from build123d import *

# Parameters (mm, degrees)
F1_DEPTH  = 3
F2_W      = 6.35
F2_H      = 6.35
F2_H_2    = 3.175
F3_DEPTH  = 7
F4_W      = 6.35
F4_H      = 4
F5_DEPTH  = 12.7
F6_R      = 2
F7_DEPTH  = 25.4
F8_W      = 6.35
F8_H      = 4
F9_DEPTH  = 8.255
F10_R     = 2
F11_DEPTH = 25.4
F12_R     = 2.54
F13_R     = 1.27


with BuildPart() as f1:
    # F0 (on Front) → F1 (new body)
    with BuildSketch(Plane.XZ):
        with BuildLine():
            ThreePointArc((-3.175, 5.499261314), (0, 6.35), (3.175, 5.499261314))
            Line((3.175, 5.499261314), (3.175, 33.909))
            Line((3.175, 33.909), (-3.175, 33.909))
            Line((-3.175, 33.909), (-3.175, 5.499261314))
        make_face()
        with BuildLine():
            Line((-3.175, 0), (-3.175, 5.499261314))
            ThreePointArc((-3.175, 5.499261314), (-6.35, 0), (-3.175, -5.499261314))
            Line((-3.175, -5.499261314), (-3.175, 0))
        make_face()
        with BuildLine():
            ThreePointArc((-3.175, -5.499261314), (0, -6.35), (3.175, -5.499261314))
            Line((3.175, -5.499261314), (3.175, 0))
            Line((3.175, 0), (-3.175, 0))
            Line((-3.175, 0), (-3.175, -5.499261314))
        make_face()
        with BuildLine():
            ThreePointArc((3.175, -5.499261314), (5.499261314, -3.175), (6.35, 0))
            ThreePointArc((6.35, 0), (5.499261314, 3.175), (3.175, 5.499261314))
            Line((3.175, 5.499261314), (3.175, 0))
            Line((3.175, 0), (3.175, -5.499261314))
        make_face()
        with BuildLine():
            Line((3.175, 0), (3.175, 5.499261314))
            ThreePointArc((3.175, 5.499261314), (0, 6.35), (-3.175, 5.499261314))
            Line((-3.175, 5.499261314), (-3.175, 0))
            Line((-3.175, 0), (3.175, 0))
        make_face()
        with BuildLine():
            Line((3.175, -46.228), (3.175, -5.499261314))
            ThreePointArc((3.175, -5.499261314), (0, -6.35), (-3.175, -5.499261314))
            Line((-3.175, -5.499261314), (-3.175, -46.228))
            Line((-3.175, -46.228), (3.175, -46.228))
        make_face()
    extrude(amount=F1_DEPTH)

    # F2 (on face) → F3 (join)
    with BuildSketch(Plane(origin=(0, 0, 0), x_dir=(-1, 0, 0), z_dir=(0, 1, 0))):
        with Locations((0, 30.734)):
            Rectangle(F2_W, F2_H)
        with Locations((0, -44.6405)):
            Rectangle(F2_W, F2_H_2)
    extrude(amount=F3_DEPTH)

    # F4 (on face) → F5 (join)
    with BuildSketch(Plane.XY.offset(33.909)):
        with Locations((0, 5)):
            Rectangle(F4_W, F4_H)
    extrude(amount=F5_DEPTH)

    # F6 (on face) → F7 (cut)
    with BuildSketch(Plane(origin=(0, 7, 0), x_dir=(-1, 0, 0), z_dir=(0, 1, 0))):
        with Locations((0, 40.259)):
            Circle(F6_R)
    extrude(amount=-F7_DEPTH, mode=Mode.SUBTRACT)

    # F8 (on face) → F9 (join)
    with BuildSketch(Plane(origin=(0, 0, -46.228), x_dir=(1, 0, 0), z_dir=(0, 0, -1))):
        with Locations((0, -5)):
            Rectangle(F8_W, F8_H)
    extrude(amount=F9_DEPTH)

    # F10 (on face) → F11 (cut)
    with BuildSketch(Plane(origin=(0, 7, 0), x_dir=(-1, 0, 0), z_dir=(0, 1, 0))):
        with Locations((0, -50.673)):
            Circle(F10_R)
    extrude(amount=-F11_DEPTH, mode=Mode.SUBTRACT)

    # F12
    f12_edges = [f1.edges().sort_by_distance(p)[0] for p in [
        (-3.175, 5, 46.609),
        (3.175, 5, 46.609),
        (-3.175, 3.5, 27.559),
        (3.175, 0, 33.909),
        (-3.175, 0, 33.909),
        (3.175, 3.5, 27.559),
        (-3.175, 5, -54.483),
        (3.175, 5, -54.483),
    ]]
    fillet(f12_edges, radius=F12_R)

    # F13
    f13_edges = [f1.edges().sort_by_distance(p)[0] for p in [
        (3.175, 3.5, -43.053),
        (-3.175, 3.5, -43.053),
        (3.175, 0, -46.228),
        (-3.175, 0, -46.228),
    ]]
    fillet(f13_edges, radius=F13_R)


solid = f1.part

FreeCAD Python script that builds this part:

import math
import FreeCAD as App
import Part
import Sketcher
from FreeCAD import Vector
Q = App.Units.Quantity


def edges_at(feature, points):
    """Names of the edges that pass closest to the given points."""
    edges = feature.Shape.Edges
    near = lambda p: min(range(len(edges)), key=lambda i: edges[i].distToShape(Part.Vertex(*p))[0])
    return sorted({f"Edge{near(p) + 1}" for p in points})

doc = App.newDocument("Part")
body = doc.addObject("PartDesign::Body", "Body")

# Sketch on XZ plane
sketch1 = body.newObject("Sketcher::SketchObject", "Sketch")
sketch1.AttachmentSupport = (doc.getObject("XZ_Plane"), [""])
sketch1.MapMode = "FlatFace"
sketch1.addGeometry(Part.LineSegment(Vector(3, 5, 0), Vector(3, 34, 0)), False)
sketch1.addGeometry(Part.LineSegment(Vector(3, 34, 0), Vector(-3, 34, 0)), False)
sketch1.addGeometry(Part.LineSegment(Vector(-3, 34, 0), Vector(-3, 5, 0)), False)
sketch1.addGeometry(Part.ArcOfCircle(Part.Circle(Vector(0, 0, 0), Vector(0, 0, 1), 6), math.radians(120), math.radians(240)), False)
sketch1.addGeometry(Part.LineSegment(Vector(-3, -5, 0), Vector(-3, -46, 0)), False)
sketch1.addGeometry(Part.LineSegment(Vector(-3, -46, 0), Vector(3, -46, 0)), False)
sketch1.addGeometry(Part.LineSegment(Vector(3, -46, 0), Vector(3, -5, 0)), False)
sketch1.addGeometry(Part.ArcOfCircle(Part.Circle(Vector(0, 0, 0), Vector(0, 0, 1), 6), math.radians(-60), math.radians(0)), False)
sketch1.addGeometry(Part.ArcOfCircle(Part.Circle(Vector(0, 0, 0), Vector(0, 0, 1), 6), math.radians(0), math.radians(60)), False)
sketch1.addConstraint(Sketcher.Constraint("Coincident", 0, 2, 1, 1))
sketch1.addConstraint(Sketcher.Constraint("Coincident", 1, 2, 2, 1))
sketch1.addConstraint(Sketcher.Constraint("Coincident", 2, 2, 3, 1))
sketch1.addConstraint(Sketcher.Constraint("Coincident", 3, 2, 4, 1))
sketch1.addConstraint(Sketcher.Constraint("Coincident", 4, 2, 5, 1))
sketch1.addConstraint(Sketcher.Constraint("Coincident", 5, 2, 6, 1))
sketch1.addConstraint(Sketcher.Constraint("Coincident", 6, 2, 7, 1))
sketch1.addConstraint(Sketcher.Constraint("Tangent", 7, 2, 8, 1))
sketch1.addConstraint(Sketcher.Constraint("Coincident", 8, 2, 0, 1))
sketch1.addConstraint(Sketcher.Constraint("Vertical", 0))
sketch1.addConstraint(Sketcher.Constraint("Horizontal", 1))
sketch1.addConstraint(Sketcher.Constraint("Vertical", 2))
sketch1.addConstraint(Sketcher.Constraint("Vertical", 4))
sketch1.addConstraint(Sketcher.Constraint("Horizontal", 5))
sketch1.addConstraint(Sketcher.Constraint("Vertical", 6))
sketch1.addConstraint(Sketcher.Constraint("Coincident", 3, 3, -1, 1))
sketch1.addConstraint(Sketcher.Constraint("Coincident", 7, 3, -1, 1))
sketch1.addConstraint(Sketcher.Constraint("Equal", 3, 7))
sketch1.addConstraint(Sketcher.Constraint("Equal", 7, 8))
sketch1.addConstraint(Sketcher.Constraint("PointOnObject", 7, 2, -1))
sketch1.addConstraint(Sketcher.Constraint("Horizontal", 3, 2, 6, 2))
sketch1.addConstraint(Sketcher.Constraint("Horizontal", 2, 2, 8, 2))
sketch1.addConstraint(Sketcher.Constraint("Vertical", 2, 2, 3, 2))
sketch1.addConstraint(Sketcher.Constraint("Radius", 3, Q("0.25 in")))
sketch1.addConstraint(Sketcher.Constraint("DistanceX", 1, 2, 1, 1, Q("0.25 in")))
sketch1.addConstraint(Sketcher.Constraint("DistanceY", 4, 2, -1, 1, Q("1.82 in")))
sketch1.addConstraint(Sketcher.Constraint("DistanceY", -1, 1, 0, 2, Q("1.335 in")))
pad1 = body.newObject("PartDesign::Pad", "Pad")
pad1.Profile = sketch1
pad1.Length = 3

# Sketch on XZ plane
sketch2 = body.newObject("Sketcher::SketchObject", "Sketch001")
sketch2.AttachmentSupport = (doc.getObject("XZ_Plane"), [""])
sketch2.MapMode = "FlatFace"
sketch2.addGeometry(Part.LineSegment(Vector(3.2, 33.9, 0), Vector(3.2, 27.6, 0)), False)
sketch2.addGeometry(Part.LineSegment(Vector(3.2, 27.6, 0), Vector(-3.2, 27.6, 0)), False)
sketch2.addGeometry(Part.LineSegment(Vector(-3.2, 27.6, 0), Vector(-3.2, 33.9, 0)), False)
sketch2.addGeometry(Part.LineSegment(Vector(-3.2, 33.9, 0), Vector(3.2, 33.9, 0)), False)
sketch2.addGeometry(Part.LineSegment(Vector(3.2, -43.1, 0), Vector(3.2, -46.2, 0)), False)
sketch2.addGeometry(Part.LineSegment(Vector(3.2, -46.2, 0), Vector(-3.2, -46.2, 0)), False)
sketch2.addGeometry(Part.LineSegment(Vector(-3.2, -46.2, 0), Vector(-3.2, -43.1, 0)), False)
sketch2.addGeometry(Part.LineSegment(Vector(-3.2, -43.1, 0), Vector(3.2, -43.1, 0)), False)
sketch2.addConstraint(Sketcher.Constraint("Coincident", 0, 2, 1, 1))
sketch2.addConstraint(Sketcher.Constraint("Coincident", 1, 2, 2, 1))
sketch2.addConstraint(Sketcher.Constraint("Coincident", 2, 2, 3, 1))
sketch2.addConstraint(Sketcher.Constraint("Coincident", 3, 2, 0, 1))
sketch2.addConstraint(Sketcher.Constraint("Coincident", 4, 2, 5, 1))
sketch2.addConstraint(Sketcher.Constraint("Coincident", 5, 2, 6, 1))
sketch2.addConstraint(Sketcher.Constraint("Coincident", 6, 2, 7, 1))
sketch2.addConstraint(Sketcher.Constraint("Coincident", 7, 2, 4, 1))
sketch2.addConstraint(Sketcher.Constraint("Vertical", 0))
sketch2.addConstraint(Sketcher.Constraint("Horizontal", 1))
sketch2.addConstraint(Sketcher.Constraint("Vertical", 2))
sketch2.addConstraint(Sketcher.Constraint("Horizontal", 3))
sketch2.addConstraint(Sketcher.Constraint("Vertical", 4))
sketch2.addConstraint(Sketcher.Constraint("Horizontal", 5))
sketch2.addConstraint(Sketcher.Constraint("Vertical", 6))
sketch2.addConstraint(Sketcher.Constraint("Horizontal", 7))
sketch2.addConstraint(Sketcher.Constraint("Vertical", 3, 2, 4, 2))
sketch2.addConstraint(Sketcher.Constraint("Vertical", 2, 2, 5, 2))
sketch2.addConstraint(Sketcher.Constraint("Equal", 7, 0))
sketch2.addConstraint(Sketcher.Constraint("DistanceX", 1, 2, 1, 1, Q("0.25 in")))
sketch2.addConstraint(Sketcher.Constraint("DistanceY", 4, 2, 4, 1, Q("0.125 in")))
sketch2.addConstraint(Sketcher.Constraint("DistanceY", 4, 2, -1, 1, Q("1.82 in")))
sketch2.addConstraint(Sketcher.Constraint("DistanceY", 6, 2, 1, 2, Q("2.78 in")))
sketch2.addConstraint(Sketcher.Constraint("DistanceX", -1, 1, 0, 2, Q("0.125 in")))
pad2 = body.newObject("PartDesign::Pad", "Pad001")
pad2.Profile = sketch2
pad2.Length = 7
pad2.Reversed = True

# Sketch on XY plane
sketch3 = body.newObject("Sketcher::SketchObject", "Sketch002")
sketch3.AttachmentSupport = (doc.getObject("XY_Plane"), [""])
sketch3.MapMode = "FlatFace"
sketch3.AttachmentOffset = App.Placement(Vector(0, 0, 1.335 * 25.4), App.Rotation())
sketch3.addGeometry(Part.LineSegment(Vector(-3.2, 7, 0), Vector(-3.2, 3, 0)), False)
sketch3.addGeometry(Part.LineSegment(Vector(-3.2, 3, 0), Vector(3.2, 3, 0)), False)
sketch3.addGeometry(Part.LineSegment(Vector(3.2, 3, 0), Vector(3.2, 7, 0)), False)
sketch3.addGeometry(Part.LineSegment(Vector(3.2, 7, 0), Vector(-3.2, 7, 0)), False)
sketch3.addConstraint(Sketcher.Constraint("Coincident", 0, 2, 1, 1))
sketch3.addConstraint(Sketcher.Constraint("Coincident", 1, 2, 2, 1))
sketch3.addConstraint(Sketcher.Constraint("Coincident", 2, 2, 3, 1))
sketch3.addConstraint(Sketcher.Constraint("Coincident", 3, 2, 0, 1))
sketch3.addConstraint(Sketcher.Constraint("Vertical", 0))
sketch3.addConstraint(Sketcher.Constraint("Horizontal", 1))
sketch3.addConstraint(Sketcher.Constraint("Vertical", 2))
sketch3.addConstraint(Sketcher.Constraint("Horizontal", 3))
sketch3.addConstraint(Sketcher.Constraint("DistanceX", 1, 1, 1, 2, Q("0.25 in")))
sketch3.addConstraint(Sketcher.Constraint("DistanceX", 0, 2, -1, 1, Q("0.125 in")))
sketch3.addConstraint(Sketcher.Constraint("DistanceY", 0, 2, 0, 1, Q("4 mm")))
sketch3.addConstraint(Sketcher.Constraint("DistanceY", -1, 1, 0, 2, Q("3 mm")))
pad3 = body.newObject("PartDesign::Pad", "Pad002")
pad3.Profile = sketch3
pad3.Length = Q("0.5 in")

# Sketch on XZ plane
sketch4 = body.newObject("Sketcher::SketchObject", "Sketch003")
sketch4.AttachmentSupport = (doc.getObject("XZ_Plane"), [""])
sketch4.MapMode = "FlatFace"
sketch4.AttachmentOffset = App.Placement(Vector(0, 0, -7), App.Rotation())
sketch4.addGeometry(Part.Circle(Vector(0, 40.3, 0), Vector(0, 0, 1), 2), False)
sketch4.addConstraint(Sketcher.Constraint("PointOnObject", 0, 3, -2))
sketch4.addConstraint(Sketcher.Constraint("Diameter", 0, Q("4 mm")))
sketch4.addConstraint(Sketcher.Constraint("DistanceY", -1, 1, 0, 3, Q("1.585 in")))
pocket1 = body.newObject("PartDesign::Pocket", "Pocket")
pocket1.Profile = sketch4
pocket1.Length = Q("1 in")
pocket1.Reversed = True

# Sketch on XY plane
sketch5 = body.newObject("Sketcher::SketchObject", "Sketch004")
sketch5.AttachmentSupport = (doc.getObject("XY_Plane"), [""])
sketch5.MapMode = "FlatFace"
sketch5.AttachmentOffset = App.Placement(Vector(0, 0, -1.82 * 25.4), App.Rotation())
sketch5.addGeometry(Part.LineSegment(Vector(-3.2, 3, 0), Vector(-3.2, 7, 0)), False)
sketch5.addGeometry(Part.LineSegment(Vector(-3.2, 7, 0), Vector(3.2, 7, 0)), False)
sketch5.addGeometry(Part.LineSegment(Vector(3.2, 7, 0), Vector(3.2, 3, 0)), False)
sketch5.addGeometry(Part.LineSegment(Vector(3.2, 3, 0), Vector(-3.2, 3, 0)), False)
sketch5.addConstraint(Sketcher.Constraint("Coincident", 0, 2, 1, 1))
sketch5.addConstraint(Sketcher.Constraint("Coincident", 1, 2, 2, 1))
sketch5.addConstraint(Sketcher.Constraint("Coincident", 2, 2, 3, 1))
sketch5.addConstraint(Sketcher.Constraint("Coincident", 3, 2, 0, 1))
sketch5.addConstraint(Sketcher.Constraint("Vertical", 0))
sketch5.addConstraint(Sketcher.Constraint("Horizontal", 1))
sketch5.addConstraint(Sketcher.Constraint("Vertical", 2))
sketch5.addConstraint(Sketcher.Constraint("Horizontal", 3))
sketch5.addConstraint(Sketcher.Constraint("DistanceX", 1, 1, 1, 2, Q("0.25 in")))
sketch5.addConstraint(Sketcher.Constraint("DistanceX", 0, 2, -1, 1, Q("0.125 in")))
sketch5.addConstraint(Sketcher.Constraint("DistanceY", 0, 1, 0, 2, Q("4 mm")))
sketch5.addConstraint(Sketcher.Constraint("DistanceY", -1, 1, 0, 2, Q("7 mm")))
pad4 = body.newObject("PartDesign::Pad", "Pad003")
pad4.Profile = sketch5
pad4.Length = Q("0.325 in")
pad4.Reversed = True

# Sketch on XZ plane
sketch6 = body.newObject("Sketcher::SketchObject", "Sketch005")
sketch6.AttachmentSupport = (doc.getObject("XZ_Plane"), [""])
sketch6.MapMode = "FlatFace"
sketch6.AttachmentOffset = App.Placement(Vector(0, 0, -7), App.Rotation())
sketch6.addGeometry(Part.Circle(Vector(0, -50.7, 0), Vector(0, 0, 1), 2), False)
sketch6.addConstraint(Sketcher.Constraint("PointOnObject", 0, 3, -2))
sketch6.addConstraint(Sketcher.Constraint("Diameter", 0, Q("4 mm")))
sketch6.addConstraint(Sketcher.Constraint("DistanceY", 0, 3, -1, 1, Q("1.995 in")))
pocket2 = body.newObject("PartDesign::Pocket", "Pocket001")
pocket2.Profile = sketch6
pocket2.Length = Q("1 in")
pocket2.Reversed = True
doc.recompute()

fillet = body.newObject("PartDesign::Fillet", "Fillet")
fillet.Base = (pocket2, edges_at(pocket2, [
    (-3.175, 5, 46.609),
    (3.175, 5, 46.609),
    (-3.175, 3.5, 27.559),
    (3.175, 0, 33.909),
    (-3.175, 0, 33.909),
    (3.175, 3.5, 27.559),
    (-3.175, 5, -54.483),
    (3.175, 5, -54.483),
]))
fillet.Radius = Q("0.1 in")
doc.recompute()

fillet2 = body.newObject("PartDesign::Fillet", "Fillet001")
fillet2.Base = (fillet, edges_at(fillet, [
    (3.175, 3.5, -43.053),
    (-3.175, 3.5, -43.053),
    (3.175, 0, -46.228),
    (-3.175, 0, -46.228),
]))
fillet2.Radius = Q("0.05 in")

doc.recompute()
